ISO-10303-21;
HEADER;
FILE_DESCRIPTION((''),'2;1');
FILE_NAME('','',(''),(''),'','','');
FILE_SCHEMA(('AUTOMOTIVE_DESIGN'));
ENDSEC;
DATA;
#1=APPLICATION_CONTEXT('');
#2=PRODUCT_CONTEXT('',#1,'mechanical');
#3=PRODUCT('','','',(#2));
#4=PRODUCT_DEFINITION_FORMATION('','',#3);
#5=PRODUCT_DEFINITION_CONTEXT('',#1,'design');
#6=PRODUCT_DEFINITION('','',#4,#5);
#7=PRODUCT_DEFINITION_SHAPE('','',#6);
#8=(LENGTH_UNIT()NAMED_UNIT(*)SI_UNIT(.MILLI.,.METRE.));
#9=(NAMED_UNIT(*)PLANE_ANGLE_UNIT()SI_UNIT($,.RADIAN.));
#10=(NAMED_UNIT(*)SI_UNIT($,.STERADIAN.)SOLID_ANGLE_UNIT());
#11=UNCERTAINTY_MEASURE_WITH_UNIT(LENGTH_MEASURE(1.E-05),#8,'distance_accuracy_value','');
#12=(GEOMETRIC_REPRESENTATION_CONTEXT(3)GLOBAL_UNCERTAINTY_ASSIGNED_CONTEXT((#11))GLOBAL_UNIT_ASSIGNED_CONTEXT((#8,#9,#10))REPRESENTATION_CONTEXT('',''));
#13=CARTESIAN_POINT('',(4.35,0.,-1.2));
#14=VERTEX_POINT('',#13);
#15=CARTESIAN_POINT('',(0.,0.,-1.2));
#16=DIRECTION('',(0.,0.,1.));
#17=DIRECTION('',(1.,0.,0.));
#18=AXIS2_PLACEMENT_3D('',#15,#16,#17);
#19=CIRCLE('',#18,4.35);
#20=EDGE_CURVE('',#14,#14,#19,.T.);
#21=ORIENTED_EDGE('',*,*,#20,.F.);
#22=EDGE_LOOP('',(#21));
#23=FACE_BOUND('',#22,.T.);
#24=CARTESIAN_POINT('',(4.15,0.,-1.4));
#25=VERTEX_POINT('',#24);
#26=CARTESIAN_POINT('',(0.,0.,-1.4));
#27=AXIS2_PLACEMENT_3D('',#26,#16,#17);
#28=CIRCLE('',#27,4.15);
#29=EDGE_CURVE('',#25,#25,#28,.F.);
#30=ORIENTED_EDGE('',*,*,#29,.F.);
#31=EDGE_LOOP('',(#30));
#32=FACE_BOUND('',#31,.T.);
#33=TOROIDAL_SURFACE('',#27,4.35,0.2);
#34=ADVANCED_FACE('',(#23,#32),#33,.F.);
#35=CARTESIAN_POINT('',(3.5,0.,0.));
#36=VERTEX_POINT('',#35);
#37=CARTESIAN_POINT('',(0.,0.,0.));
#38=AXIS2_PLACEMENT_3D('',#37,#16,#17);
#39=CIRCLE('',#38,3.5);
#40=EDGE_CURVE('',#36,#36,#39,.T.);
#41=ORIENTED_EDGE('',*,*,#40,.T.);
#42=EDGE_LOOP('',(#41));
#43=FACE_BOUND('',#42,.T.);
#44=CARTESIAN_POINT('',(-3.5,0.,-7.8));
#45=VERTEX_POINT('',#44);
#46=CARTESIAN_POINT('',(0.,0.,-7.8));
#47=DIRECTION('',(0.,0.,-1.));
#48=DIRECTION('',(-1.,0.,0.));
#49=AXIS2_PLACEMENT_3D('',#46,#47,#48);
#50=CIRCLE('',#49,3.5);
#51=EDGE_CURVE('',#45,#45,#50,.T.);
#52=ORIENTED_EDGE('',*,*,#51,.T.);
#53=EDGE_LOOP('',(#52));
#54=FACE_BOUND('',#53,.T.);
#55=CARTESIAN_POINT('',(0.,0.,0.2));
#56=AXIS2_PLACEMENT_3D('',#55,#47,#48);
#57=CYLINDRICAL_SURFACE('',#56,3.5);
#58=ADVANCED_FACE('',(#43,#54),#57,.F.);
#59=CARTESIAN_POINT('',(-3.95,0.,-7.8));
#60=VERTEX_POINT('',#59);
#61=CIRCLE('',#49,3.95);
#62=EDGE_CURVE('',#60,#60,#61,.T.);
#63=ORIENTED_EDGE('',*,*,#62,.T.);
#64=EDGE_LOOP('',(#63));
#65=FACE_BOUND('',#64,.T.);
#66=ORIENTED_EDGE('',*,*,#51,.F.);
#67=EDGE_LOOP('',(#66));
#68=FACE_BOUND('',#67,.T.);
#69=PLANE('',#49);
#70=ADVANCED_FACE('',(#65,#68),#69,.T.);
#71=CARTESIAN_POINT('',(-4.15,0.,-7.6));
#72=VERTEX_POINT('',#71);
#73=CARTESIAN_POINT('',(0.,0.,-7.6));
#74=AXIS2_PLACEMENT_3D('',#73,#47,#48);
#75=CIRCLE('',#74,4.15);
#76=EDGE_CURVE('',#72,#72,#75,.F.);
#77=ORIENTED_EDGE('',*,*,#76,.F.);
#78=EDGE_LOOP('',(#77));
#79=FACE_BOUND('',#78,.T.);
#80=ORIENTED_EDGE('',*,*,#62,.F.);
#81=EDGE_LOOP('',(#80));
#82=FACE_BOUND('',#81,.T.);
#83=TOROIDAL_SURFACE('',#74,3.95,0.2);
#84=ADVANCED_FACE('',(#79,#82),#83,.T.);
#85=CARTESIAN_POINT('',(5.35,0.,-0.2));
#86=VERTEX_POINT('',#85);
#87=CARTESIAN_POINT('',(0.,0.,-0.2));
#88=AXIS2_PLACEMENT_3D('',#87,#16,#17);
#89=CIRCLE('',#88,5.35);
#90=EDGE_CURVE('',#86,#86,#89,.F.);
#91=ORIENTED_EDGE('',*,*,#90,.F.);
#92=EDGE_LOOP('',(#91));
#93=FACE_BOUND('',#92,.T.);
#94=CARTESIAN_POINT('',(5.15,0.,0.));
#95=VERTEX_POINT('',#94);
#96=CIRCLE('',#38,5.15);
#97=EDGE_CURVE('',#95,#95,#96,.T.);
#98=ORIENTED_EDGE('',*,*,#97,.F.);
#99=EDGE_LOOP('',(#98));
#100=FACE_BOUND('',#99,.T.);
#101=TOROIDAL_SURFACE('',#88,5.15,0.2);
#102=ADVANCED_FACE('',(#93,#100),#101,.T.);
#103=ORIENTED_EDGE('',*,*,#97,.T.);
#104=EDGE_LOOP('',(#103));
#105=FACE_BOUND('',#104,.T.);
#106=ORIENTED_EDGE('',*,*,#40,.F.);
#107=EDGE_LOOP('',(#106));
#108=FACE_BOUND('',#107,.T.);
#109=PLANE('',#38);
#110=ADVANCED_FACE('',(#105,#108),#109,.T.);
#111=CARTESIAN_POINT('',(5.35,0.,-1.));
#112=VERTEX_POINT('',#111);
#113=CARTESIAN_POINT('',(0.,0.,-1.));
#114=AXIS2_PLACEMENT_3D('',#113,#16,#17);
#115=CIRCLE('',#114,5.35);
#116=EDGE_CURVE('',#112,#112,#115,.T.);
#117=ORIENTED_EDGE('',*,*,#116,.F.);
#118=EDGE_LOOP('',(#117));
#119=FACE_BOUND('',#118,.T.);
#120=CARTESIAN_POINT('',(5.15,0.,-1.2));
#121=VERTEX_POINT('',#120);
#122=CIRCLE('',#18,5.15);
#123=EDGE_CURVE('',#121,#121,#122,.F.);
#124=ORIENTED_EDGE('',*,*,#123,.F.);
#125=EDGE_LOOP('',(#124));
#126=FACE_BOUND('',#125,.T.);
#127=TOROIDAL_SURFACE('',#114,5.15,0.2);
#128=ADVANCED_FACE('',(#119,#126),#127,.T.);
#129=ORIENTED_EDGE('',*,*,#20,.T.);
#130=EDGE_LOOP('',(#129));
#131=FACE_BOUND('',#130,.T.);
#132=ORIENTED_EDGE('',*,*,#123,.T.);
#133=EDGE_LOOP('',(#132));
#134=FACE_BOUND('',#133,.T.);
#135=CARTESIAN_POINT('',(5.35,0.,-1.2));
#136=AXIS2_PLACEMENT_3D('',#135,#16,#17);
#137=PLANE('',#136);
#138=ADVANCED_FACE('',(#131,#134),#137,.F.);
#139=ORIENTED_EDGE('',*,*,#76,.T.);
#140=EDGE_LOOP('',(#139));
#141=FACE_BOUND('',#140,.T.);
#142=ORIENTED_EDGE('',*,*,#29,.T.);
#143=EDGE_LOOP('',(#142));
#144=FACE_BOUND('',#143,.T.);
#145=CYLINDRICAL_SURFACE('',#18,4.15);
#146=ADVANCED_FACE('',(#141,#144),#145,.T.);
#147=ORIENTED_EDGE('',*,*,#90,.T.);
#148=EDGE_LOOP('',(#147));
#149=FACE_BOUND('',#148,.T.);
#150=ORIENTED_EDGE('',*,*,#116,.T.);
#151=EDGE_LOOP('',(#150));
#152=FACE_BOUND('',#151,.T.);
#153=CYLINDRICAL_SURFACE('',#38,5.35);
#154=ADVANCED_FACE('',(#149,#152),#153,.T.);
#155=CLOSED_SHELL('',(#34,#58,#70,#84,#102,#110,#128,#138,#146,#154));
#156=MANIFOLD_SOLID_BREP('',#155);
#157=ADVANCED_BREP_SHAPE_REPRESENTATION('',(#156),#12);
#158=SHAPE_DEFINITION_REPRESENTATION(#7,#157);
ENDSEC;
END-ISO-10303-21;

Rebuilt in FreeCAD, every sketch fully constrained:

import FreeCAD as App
import Part
import Sketcher

V = App.Vector
Q = App.Units.Quantity


def edges_at(feature, points):
    """Names of the edges that pass closest to the given points."""
    edges = feature.Shape.Edges
    near = lambda p: min(range(len(edges)), key=lambda i: edges[i].distToShape(Part.Vertex(*p))[0])
    return sorted({f"Edge{near(p) + 1}" for p in points})


def add_polygon(sketch, points):
    """Adds a closed chain of lines whose ends are joined by coincident constraints."""
    first, n = sketch.GeometryCount, len(points)
    for a, b in zip(points, points[1:] + points[:1]):
        sketch.addGeometry(Part.LineSegment(App.Vector(*a, 0), App.Vector(*b, 0)), False)
    for i in range(n):
        sketch.addConstraint(Sketcher.Constraint("Coincident", first + i, 2, first + (i + 1) % n, 1))

doc = App.newDocument("Part")
body = doc.addObject("PartDesign::Body", "Body")

sketch1 = doc.addObject("Sketcher::SketchObject", "Sketch")
body.addObject(sketch1)
sketch1.AttachmentSupport = (doc.XZ_Plane, [""])
sketch1.MapMode = "FlatFace"
add_polygon(sketch1, [(0, -8), (0, 0), (5, 0), (5, -8)])
sketch1.addConstraint(Sketcher.Constraint("Vertical", 0))
sketch1.addConstraint(Sketcher.Constraint("Horizontal", 1))
sketch1.addConstraint(Sketcher.Constraint("Vertical", 2))
sketch1.addConstraint(Sketcher.Constraint("Horizontal", 3))
sketch1.addConstraint(Sketcher.Constraint("Coincident", 0, 2, -1, 1))
sketch1.addConstraint(Sketcher.Constraint("DistanceY", 0, 1, 0, 2, Q("7.8 mm")))
sketch1.addConstraint(Sketcher.Constraint("DistanceX", 1, 1, 1, 2, Q("5.35 mm")))
revolution = doc.addObject("PartDesign::Revolution", "Revolution")
body.addObject(revolution)
revolution.Profile = sketch1
revolution.ReferenceAxis = (sketch1, ["V_Axis"])
revolution.Angle = 360

sketch2 = doc.addObject("Sketcher::SketchObject", "Sketch001")
body.addObject(sketch2)
sketch2.AttachmentSupport = (doc.XY_Plane, [""])
sketch2.MapMode = "FlatFace"
sketch2.AttachmentOffset = App.Placement(V(0, 0, -7.8), App.Rotation())
sketch2.addGeometry(Part.Circle(V(0, 0, 0), V(0, 0, 1), 3.5), False)
sketch2.addConstraint(Sketcher.Constraint("Coincident", 0, 3, -1, 1))
sketch2.addConstraint(Sketcher.Constraint("Diameter", 0, Q("7 mm")))
pocket1 = doc.addObject("PartDesign::Pocket", "Pocket")
body.addObject(pocket1)
pocket1.Profile = sketch2
pocket1.Length = 8
pocket1.Reversed = True

sketch3 = doc.addObject("Sketcher::SketchObject", "Sketch002")
body.addObject(sketch3)
sketch3.AttachmentSupport = (doc.XZ_Plane, [""])
sketch3.MapMode = "FlatFace"
add_polygon(sketch3, [(4.2, -7.8), (4.2, -1.2), (5.3, -1.2), (5.3, -7.8)])
sketch3.addConstraint(Sketcher.Constraint("Vertical", 0))
sketch3.addConstraint(Sketcher.Constraint("Horizontal", 1))
sketch3.addConstraint(Sketcher.Constraint("Vertical", 2))
sketch3.addConstraint(Sketcher.Constraint("Horizontal", 3))
sketch3.addConstraint(Sketcher.Constraint("DistanceX", 1, 1, 1, 2, Q("1.2 mm")))
sketch3.addConstraint(Sketcher.Constraint("DistanceY", 0, 1, 0, 2, Q("6.6 mm")))
sketch3.addConstraint(Sketcher.Constraint("DistanceY", 0, 2, -1, 1, Q("1.2 mm")))
sketch3.addConstraint(Sketcher.Constraint("DistanceX", -1, 1, 0, 2, Q("4.15 mm")))
groove = doc.addObject("PartDesign::Groove", "Groove")
body.addObject(groove)
groove.Profile = sketch3
groove.ReferenceAxis = (sketch3, ["V_Axis"])
groove.Angle = 360
doc.recompute()

fillet = doc.addObject("PartDesign::Fillet", "Fillet")
body.addObject(fillet)
fillet.Base = (groove, edges_at(groove, [(-4.15, 0, -7.8)]))
fillet.Radius = 0.2
doc.recompute()

fillet2 = doc.addObject("PartDesign::Fillet", "Fillet001")
body.addObject(fillet2)
fillet2.Base = (fillet, edges_at(fillet, [(-4.15, 0, -1.2)]))
fillet2.Radius = 0.2
doc.recompute()

fillet3 = doc.addObject("PartDesign::Fillet", "Fillet002")
body.addObject(fillet3)
fillet3.Base = (fillet2, edges_at(fillet2, [(-5.35, 0, -1.2), (-5.35, 0, 0)]))
fillet3.Radius = 0.2

doc.recompute()
